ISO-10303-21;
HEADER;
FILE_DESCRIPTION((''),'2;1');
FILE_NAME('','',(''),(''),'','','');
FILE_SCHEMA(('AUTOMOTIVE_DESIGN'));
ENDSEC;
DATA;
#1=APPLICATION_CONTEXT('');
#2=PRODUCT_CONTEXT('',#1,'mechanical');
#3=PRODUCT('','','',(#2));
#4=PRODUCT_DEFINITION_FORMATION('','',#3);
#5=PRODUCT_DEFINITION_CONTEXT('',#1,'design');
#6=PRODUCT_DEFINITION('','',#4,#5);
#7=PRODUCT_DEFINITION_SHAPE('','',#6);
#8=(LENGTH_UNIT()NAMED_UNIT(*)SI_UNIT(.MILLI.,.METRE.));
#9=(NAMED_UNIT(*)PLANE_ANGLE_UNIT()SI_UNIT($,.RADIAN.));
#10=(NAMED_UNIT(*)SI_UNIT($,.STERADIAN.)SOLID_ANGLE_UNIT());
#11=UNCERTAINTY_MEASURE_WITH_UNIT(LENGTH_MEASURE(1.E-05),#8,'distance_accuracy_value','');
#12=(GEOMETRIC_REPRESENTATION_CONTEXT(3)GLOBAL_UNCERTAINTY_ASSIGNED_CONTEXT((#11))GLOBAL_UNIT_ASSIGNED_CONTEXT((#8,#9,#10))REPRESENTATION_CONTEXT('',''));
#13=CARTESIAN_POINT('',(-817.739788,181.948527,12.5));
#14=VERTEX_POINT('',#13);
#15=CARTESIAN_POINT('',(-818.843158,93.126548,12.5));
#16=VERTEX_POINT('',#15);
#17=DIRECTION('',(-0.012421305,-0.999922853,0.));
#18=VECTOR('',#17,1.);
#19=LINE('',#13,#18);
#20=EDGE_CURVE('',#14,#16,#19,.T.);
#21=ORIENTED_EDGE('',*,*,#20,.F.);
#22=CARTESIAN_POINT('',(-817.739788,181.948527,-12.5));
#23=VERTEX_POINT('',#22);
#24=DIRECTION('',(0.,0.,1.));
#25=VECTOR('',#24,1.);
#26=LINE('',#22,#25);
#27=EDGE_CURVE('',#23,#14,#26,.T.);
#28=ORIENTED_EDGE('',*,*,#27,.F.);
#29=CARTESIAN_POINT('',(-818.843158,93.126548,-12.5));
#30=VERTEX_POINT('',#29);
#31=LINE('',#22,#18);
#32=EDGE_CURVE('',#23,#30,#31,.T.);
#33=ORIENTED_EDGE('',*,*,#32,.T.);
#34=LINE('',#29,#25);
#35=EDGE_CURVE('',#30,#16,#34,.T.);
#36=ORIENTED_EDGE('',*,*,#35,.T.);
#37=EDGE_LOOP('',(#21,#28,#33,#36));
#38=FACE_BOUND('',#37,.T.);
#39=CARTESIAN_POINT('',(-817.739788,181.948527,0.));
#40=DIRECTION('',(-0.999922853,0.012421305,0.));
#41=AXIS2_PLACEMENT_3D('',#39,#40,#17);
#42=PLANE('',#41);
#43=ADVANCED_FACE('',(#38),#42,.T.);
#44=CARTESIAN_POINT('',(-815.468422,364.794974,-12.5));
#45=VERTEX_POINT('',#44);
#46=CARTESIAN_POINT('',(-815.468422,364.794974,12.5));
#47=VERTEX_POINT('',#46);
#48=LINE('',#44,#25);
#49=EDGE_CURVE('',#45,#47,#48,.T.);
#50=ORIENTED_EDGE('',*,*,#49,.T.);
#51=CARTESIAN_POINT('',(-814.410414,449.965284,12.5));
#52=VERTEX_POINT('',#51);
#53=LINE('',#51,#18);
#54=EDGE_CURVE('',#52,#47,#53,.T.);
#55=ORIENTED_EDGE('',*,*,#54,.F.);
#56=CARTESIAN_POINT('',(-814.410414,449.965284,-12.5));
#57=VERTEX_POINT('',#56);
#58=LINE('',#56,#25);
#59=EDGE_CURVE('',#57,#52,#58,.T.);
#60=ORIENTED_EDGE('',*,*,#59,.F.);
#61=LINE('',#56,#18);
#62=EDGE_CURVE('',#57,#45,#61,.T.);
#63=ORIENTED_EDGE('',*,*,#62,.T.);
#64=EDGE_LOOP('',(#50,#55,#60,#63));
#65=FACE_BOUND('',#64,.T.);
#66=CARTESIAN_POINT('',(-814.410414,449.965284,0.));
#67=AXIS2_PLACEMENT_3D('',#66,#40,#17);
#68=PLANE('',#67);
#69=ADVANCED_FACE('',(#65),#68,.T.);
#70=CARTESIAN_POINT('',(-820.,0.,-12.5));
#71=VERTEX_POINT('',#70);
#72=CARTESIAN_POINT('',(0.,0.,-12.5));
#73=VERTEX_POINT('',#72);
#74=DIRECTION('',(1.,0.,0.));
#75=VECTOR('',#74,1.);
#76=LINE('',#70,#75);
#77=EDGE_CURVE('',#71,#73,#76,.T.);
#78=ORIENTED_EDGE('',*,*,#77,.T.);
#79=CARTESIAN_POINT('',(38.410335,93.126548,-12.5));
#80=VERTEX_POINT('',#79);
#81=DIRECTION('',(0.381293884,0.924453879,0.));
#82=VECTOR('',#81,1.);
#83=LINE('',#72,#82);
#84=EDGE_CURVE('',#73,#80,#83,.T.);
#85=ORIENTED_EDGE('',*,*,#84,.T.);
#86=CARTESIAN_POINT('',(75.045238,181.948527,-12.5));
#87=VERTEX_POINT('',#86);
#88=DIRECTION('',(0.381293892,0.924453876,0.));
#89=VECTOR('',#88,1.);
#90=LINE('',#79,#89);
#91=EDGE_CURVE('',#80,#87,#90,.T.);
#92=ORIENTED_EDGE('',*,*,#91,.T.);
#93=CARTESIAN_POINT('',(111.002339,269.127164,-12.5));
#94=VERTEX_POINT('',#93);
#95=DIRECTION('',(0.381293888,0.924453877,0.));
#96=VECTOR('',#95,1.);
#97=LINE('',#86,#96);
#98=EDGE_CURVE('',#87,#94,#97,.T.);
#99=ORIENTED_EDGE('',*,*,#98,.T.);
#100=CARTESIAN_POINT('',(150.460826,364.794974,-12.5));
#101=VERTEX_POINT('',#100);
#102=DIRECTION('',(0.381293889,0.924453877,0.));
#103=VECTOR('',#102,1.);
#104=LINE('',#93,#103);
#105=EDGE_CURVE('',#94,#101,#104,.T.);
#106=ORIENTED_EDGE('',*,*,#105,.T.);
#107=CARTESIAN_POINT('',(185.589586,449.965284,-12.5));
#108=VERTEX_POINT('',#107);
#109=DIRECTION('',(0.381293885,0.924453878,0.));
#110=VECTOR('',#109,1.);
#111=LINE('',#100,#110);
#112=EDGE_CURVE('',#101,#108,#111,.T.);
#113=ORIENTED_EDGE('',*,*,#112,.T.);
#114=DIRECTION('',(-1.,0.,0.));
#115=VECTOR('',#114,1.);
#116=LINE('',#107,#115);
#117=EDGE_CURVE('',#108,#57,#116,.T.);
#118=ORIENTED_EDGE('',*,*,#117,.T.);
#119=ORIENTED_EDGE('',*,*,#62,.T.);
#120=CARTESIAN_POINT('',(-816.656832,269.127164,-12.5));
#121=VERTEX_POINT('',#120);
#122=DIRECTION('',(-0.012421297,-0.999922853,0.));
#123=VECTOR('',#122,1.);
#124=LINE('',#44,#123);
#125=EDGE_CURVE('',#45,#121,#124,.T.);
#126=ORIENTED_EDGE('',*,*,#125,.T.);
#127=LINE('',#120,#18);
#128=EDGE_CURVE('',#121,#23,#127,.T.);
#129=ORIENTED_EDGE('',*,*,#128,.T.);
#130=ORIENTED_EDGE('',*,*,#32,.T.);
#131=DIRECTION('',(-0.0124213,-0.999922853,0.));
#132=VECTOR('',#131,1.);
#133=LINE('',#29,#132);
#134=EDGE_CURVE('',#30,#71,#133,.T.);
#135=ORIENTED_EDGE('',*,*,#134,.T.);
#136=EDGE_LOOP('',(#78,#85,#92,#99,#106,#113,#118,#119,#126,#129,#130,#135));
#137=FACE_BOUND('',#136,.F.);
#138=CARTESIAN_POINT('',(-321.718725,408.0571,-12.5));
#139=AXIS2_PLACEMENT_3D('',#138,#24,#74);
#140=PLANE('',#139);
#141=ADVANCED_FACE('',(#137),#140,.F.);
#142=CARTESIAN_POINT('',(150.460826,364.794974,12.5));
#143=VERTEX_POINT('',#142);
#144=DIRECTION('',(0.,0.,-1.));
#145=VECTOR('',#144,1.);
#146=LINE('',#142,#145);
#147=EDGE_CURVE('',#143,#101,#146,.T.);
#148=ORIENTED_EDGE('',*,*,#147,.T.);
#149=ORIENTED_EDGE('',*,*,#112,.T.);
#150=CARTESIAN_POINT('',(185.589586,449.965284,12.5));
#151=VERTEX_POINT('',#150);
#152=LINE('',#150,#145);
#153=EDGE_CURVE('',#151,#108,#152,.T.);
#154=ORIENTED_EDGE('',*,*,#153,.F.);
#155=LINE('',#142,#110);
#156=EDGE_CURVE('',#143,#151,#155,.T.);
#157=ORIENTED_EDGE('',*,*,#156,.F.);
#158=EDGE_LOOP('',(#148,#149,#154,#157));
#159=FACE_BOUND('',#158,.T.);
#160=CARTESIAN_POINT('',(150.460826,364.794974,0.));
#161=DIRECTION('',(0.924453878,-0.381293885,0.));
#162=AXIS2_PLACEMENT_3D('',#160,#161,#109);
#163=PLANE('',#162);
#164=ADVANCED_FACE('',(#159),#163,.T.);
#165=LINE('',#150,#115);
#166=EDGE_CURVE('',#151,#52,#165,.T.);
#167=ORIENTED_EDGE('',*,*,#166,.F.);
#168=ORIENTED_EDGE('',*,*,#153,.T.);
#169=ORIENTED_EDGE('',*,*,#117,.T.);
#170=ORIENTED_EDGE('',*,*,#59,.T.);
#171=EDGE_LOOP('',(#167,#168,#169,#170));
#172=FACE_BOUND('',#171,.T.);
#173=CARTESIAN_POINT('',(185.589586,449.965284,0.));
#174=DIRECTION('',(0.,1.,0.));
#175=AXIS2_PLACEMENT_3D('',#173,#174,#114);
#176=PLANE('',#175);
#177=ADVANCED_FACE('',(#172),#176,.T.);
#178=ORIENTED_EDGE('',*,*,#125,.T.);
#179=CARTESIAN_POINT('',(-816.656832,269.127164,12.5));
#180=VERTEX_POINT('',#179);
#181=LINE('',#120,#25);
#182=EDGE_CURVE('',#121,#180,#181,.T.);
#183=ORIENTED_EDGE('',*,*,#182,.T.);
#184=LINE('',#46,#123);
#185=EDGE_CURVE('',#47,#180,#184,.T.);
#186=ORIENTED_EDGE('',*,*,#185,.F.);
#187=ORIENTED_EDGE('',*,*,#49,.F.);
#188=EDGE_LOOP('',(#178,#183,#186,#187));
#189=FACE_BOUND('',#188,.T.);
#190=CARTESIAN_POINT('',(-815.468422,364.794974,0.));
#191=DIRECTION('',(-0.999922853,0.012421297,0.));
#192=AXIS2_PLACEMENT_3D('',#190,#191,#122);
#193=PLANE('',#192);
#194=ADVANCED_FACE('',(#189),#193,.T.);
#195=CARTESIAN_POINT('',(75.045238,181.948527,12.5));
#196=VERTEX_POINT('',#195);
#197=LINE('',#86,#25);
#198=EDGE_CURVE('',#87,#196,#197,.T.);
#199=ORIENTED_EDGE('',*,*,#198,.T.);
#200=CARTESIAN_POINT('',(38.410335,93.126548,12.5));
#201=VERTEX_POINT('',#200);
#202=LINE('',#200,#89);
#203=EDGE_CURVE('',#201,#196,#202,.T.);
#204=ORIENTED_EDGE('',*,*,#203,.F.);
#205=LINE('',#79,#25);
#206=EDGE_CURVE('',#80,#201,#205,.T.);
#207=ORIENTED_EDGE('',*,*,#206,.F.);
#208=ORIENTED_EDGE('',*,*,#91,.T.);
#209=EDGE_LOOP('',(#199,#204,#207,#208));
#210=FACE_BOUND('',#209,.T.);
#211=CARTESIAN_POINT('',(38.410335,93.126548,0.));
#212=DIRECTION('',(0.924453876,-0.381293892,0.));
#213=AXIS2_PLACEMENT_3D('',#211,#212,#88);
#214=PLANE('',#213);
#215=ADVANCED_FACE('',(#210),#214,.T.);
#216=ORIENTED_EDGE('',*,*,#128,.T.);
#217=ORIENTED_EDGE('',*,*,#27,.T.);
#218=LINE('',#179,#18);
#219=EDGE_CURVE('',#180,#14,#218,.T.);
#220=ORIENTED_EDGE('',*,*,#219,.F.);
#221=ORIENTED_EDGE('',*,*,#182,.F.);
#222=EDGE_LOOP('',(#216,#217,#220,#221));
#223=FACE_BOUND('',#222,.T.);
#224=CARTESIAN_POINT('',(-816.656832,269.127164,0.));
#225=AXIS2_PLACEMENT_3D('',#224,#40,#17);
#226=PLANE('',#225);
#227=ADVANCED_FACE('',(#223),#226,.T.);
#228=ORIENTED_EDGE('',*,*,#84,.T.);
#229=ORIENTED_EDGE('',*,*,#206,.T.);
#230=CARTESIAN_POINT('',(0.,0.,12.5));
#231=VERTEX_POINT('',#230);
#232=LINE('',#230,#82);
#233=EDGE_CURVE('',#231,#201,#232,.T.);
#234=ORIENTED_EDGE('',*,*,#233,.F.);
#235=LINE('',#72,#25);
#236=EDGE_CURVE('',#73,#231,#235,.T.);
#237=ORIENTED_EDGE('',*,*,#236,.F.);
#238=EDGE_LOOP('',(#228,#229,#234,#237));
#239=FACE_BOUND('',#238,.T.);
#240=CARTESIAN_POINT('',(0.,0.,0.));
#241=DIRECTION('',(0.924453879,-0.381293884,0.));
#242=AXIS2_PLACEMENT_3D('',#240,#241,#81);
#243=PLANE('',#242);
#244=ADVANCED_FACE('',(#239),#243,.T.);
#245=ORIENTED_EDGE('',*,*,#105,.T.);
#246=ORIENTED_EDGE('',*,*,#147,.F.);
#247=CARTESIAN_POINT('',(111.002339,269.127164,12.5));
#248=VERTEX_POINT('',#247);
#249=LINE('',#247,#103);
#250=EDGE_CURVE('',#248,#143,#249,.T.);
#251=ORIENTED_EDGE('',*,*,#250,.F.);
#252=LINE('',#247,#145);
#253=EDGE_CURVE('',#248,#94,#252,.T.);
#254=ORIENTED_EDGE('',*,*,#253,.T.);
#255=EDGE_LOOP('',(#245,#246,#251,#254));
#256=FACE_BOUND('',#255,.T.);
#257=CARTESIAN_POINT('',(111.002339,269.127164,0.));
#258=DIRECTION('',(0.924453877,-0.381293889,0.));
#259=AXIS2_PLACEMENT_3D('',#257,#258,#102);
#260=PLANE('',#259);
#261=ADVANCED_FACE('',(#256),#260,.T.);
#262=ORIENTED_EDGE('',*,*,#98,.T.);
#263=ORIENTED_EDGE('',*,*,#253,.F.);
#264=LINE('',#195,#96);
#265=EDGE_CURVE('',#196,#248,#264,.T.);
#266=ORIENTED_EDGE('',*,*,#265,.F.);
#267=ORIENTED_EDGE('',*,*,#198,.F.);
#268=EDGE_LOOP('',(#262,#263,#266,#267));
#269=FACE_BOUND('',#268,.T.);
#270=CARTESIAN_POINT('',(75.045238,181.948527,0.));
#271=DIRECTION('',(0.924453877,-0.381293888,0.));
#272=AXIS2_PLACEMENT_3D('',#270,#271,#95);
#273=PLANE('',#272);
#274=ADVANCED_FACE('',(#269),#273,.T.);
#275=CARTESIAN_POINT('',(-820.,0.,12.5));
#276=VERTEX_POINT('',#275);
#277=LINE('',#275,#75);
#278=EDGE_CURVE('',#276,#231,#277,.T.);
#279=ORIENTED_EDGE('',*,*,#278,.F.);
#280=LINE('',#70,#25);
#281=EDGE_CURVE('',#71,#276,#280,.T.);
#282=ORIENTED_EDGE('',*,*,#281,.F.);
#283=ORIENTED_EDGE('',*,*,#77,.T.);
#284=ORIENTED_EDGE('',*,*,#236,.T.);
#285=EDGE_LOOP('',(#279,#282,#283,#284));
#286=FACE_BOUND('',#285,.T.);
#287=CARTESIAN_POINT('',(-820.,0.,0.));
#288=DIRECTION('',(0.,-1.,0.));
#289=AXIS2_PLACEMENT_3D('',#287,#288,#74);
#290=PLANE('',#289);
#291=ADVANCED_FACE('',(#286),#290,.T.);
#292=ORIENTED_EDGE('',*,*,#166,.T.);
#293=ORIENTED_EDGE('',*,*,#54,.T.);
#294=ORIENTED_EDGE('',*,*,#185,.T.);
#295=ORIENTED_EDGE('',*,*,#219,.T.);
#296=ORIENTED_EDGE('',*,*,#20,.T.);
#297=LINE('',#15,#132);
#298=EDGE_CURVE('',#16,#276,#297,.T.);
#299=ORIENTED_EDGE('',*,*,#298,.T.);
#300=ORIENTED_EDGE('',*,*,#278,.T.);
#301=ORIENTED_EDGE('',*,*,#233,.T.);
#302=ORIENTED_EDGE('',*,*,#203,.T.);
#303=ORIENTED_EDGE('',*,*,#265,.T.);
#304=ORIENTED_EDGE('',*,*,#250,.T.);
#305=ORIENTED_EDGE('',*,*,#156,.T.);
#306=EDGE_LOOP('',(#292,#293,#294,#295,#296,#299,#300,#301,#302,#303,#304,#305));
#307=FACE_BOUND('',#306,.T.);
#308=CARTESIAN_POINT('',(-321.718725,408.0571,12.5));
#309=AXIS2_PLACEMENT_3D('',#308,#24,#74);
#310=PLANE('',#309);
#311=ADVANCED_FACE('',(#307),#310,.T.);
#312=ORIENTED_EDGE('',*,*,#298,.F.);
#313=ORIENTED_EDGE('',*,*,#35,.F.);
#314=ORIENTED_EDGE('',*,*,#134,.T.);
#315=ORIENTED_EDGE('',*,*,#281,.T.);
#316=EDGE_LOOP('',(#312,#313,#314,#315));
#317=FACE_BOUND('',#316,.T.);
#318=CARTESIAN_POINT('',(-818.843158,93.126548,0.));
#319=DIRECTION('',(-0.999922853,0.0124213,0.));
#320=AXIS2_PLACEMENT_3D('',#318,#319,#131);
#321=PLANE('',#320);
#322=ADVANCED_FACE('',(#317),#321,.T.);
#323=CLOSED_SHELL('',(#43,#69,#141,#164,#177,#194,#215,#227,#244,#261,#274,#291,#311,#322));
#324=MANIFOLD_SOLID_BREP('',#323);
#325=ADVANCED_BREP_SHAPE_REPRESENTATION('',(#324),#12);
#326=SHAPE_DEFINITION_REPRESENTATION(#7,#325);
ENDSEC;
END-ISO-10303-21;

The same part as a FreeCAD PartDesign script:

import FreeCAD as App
import Part
import Sketcher


def add_polygon(sketch, points):
    """Adds a closed chain of lines whose ends are joined by coincident constraints."""
    first, n = sketch.GeometryCount, len(points)
    for a, b in zip(points, points[1:] + points[:1]):
        sketch.addGeometry(Part.LineSegment(App.Vector(*a, 0), App.Vector(*b, 0)), False)
    for i in range(n):
        sketch.addConstraint(Sketcher.Constraint("Coincident", first + i, 2, first + (i + 1) % n, 1))

doc = App.newDocument("Part")
params = doc.addObject("Spreadsheet::Sheet", "Params")
for row, (alias, value) in enumerate([
    ("sketch1_width", "1000 mm"),
    ("sketch1_width2", "820 mm"),
    ("pad1_length", "25 mm"),
], start=1):
    params.set(f"A{row}", alias)
    params.set(f"B{row}", "=" + value)
    params.setAlias(f"B{row}", alias)

body = doc.addObject("PartDesign::Body", "Body")

# Sketch on XY plane
sketch1 = doc.addObject("Sketcher::SketchObject", "Sketch")
body.addObject(sketch1)
sketch1.AttachmentSupport = (doc.XY_Plane, [""])
sketch1.MapMode = "FlatFace"
add_polygon(sketch1, [(186, 450), (-814, 450), (-815, 365), (-817, 269), (-818, 182), (-819, 93), (-820, 0), (0, 0), (38, 93), (75, 182), (111, 269), (150, 365)])  # lines 0-11
sketch1.addConstraint([
    Sketcher.Constraint("Horizontal", 0),
    Sketcher.Constraint("Horizontal", 6),
    Sketcher.Constraint("Coincident", 6, 2, -1, 1),
    Sketcher.Constraint("Parallel", 1, 2),
    Sketcher.Constraint("Parallel", 2, 3),
    Sketcher.Constraint("Parallel", 3, 4),
    Sketcher.Constraint("Parallel", 4, 5),
    Sketcher.Constraint("Parallel", 7, 8),
    Sketcher.Constraint("Parallel", 8, 9),
    Sketcher.Constraint("Parallel", 9, 10),
    Sketcher.Constraint("Parallel", 10, 11),
    Sketcher.Constraint("Horizontal", 4, 2, 7, 2),
    Sketcher.Constraint("Horizontal", 3, 2, 8, 2),
    Sketcher.Constraint("Horizontal", 2, 2, 9, 2),
    Sketcher.Constraint("Horizontal", 1, 2, 10, 2),
    Sketcher.Constraint("DistanceX", 0, 2, 0, 1, 1000.0),
    Sketcher.Constraint("DistanceX", 6, 1, 6, 2, 820.0),
    Sketcher.Constraint("DistanceX", 8, 2, 9, 2, 35.957101),
    Sketcher.Constraint("Distance", 1, 85.176881),
    Sketcher.Constraint("Distance", 2, 95.675191),
    Sketcher.Constraint("Distance", 4, 88.828832),
    Sketcher.Constraint("Distance", 9, 94.302852),
    Sketcher.Constraint("DistanceX", 1, 2, -1, 1, 815.468422),
])
sketch1.setExpression("Constraints[27]", "Params.sketch1_width")
sketch1.setExpression("Constraints[28]", "Params.sketch1_width2")
pad1 = doc.addObject("PartDesign::Pad", "Pad")
body.addObject(pad1)
pad1.Profile = sketch1
pad1.setExpression("Length", "Params.pad1_length")
pad1.Midplane = True

doc.recompute()
